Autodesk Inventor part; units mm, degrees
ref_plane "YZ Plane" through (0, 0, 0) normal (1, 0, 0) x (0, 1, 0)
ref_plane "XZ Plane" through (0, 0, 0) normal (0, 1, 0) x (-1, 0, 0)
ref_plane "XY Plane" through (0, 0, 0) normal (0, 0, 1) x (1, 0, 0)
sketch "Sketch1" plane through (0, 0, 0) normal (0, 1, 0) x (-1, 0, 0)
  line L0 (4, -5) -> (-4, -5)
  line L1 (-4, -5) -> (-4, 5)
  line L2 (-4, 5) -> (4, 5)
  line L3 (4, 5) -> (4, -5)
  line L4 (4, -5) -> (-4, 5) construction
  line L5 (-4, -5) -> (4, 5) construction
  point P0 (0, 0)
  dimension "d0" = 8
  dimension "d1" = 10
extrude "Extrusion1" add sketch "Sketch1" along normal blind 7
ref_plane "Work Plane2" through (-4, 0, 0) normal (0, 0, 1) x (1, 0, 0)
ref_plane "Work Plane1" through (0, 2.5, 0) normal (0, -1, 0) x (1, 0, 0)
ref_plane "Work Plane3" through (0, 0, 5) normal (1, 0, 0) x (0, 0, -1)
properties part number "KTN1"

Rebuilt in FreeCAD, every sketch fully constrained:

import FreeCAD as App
import Part
import Sketcher


def add_polygon(sketch, points):
    """Adds a closed chain of lines whose ends are joined by coincident constraints."""
    first, n = sketch.GeometryCount, len(points)
    for a, b in zip(points, points[1:] + points[:1]):
        sketch.addGeometry(Part.LineSegment(App.Vector(*a, 0), App.Vector(*b, 0)), False)
    for i in range(n):
        sketch.addConstraint(Sketcher.Constraint("Coincident", first + i, 2, first + (i + 1) % n, 1))

doc = App.newDocument("Part")
body = doc.addObject("PartDesign::Body", "Body")

# Sketch on XZ plane
sketch1 = doc.addObject("Sketcher::SketchObject", "Sketch")
body.addObject(sketch1)
sketch1.AttachmentSupport = (doc.XZ_Plane, [""])
sketch1.MapMode = "FlatFace"
add_polygon(sketch1, [(4, -5), (-4, -5), (-4, 5), (4, 5)])  # lines 0-3
sketch1.addConstraint([
    Sketcher.Constraint("Horizontal", 0),
    Sketcher.Constraint("Vertical", 1),
    Sketcher.Constraint("Horizontal", 2),
    Sketcher.Constraint("Vertical", 3),
    Sketcher.Constraint("Symmetric", 0, 2, 2, 2, -1, 1),
    Sketcher.Constraint("DistanceX", 0, 2, 0, 1, 8.0),
    Sketcher.Constraint("DistanceY", 1, 1, 1, 2, 10.0),
])
pad1 = doc.addObject("PartDesign::Pad", "Pad")
body.addObject(pad1)
pad1.Profile = sketch1
pad1.Length = 7
pad1.Reversed = True

doc.recompute()
